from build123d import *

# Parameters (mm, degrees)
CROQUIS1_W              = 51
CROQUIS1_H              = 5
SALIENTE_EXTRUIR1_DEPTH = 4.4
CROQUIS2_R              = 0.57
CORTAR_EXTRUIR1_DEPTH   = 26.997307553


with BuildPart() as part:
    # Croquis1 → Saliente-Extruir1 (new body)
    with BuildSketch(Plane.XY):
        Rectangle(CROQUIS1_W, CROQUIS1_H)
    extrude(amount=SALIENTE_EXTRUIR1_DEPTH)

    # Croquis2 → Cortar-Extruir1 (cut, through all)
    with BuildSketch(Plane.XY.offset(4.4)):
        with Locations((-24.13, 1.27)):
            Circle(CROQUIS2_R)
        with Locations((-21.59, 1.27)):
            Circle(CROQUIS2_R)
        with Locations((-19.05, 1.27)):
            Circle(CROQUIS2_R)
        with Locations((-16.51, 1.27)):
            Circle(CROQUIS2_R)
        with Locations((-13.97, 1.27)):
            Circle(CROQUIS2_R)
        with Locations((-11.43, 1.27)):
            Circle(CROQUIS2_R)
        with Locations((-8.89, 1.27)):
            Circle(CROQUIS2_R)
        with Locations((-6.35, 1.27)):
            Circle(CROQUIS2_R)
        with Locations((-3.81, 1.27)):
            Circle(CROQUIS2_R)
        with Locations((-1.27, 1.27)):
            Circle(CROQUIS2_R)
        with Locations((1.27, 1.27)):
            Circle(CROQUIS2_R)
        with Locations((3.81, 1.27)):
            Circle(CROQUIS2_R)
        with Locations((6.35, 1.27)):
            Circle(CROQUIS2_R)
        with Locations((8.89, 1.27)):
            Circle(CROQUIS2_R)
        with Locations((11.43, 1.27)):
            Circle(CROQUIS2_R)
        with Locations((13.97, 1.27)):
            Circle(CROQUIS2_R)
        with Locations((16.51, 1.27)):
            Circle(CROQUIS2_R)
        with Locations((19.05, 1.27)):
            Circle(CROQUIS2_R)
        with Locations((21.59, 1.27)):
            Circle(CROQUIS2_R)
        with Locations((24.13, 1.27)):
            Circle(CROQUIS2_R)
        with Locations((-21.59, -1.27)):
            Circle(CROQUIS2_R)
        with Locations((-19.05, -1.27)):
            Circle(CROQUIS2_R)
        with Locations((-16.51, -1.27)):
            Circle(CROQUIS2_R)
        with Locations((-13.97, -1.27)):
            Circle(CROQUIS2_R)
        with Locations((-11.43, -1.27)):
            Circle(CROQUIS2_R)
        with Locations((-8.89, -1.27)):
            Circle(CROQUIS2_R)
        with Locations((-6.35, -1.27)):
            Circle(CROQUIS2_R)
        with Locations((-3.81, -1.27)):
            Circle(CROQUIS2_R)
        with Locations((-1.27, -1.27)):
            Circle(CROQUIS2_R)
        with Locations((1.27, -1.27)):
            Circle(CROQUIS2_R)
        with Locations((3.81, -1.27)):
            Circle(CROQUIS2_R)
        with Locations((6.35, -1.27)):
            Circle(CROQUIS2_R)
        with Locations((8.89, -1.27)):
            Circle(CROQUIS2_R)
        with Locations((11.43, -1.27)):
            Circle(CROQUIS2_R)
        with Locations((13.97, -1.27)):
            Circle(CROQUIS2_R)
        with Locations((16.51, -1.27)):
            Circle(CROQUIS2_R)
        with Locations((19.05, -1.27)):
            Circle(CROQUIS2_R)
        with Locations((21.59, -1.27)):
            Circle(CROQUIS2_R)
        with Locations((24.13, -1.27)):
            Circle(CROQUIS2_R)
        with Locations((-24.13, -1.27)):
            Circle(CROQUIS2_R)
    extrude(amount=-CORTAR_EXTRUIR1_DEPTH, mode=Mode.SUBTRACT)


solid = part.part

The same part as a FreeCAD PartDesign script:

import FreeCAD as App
import Part
import Sketcher
Q = App.Units.Quantity


def add_polygon(sketch, points):
    """Adds a closed chain of lines whose ends are joined by coincident constraints."""
    first, n = sketch.GeometryCount, len(points)
    for a, b in zip(points, points[1:] + points[:1]):
        sketch.addGeometry(Part.LineSegment(App.Vector(*a, 0), App.Vector(*b, 0)), False)
    for i in range(n):
        sketch.addConstraint(Sketcher.Constraint("Coincident", first + i, 2, first + (i + 1) % n, 1))

doc = App.newDocument("Part")
body = doc.addObject("PartDesign::Body", "Body")

# Sketch on XY plane
sketch1 = body.newObject("Sketcher::SketchObject", "Sketch")
sketch1.AttachmentSupport = (doc.getObject("XY_Plane"), [""])
sketch1.MapMode = "FlatFace"
add_polygon(sketch1, [(-26, 2), (-26, -2), (26, -2), (26, 2)])  # lines 0-3
sketch1.addConstraint(Sketcher.Constraint("Vertical", 0))
sketch1.addConstraint(Sketcher.Constraint("Horizontal", 1))
sketch1.addConstraint(Sketcher.Constraint("Vertical", 2))
sketch1.addConstraint(Sketcher.Constraint("Horizontal", 3))
sketch1.addConstraint(Sketcher.Constraint("Symmetric", 0, 2, 2, 2, -1, 1))
sketch1.addConstraint(Sketcher.Constraint("DistanceX", 1, 1, 1, 2, Q("51 mm")))
sketch1.addConstraint(Sketcher.Constraint("DistanceY", 0, 2, 0, 1, Q("5 mm")))
pad1 = body.newObject("PartDesign::Pad", "Pad")
pad1.Profile = sketch1
pad1.Length = 4.4

# Sketch on XY plane
sketch2 = body.newObject("Sketcher::SketchObject", "Sketch001")
sketch2.AttachmentSupport = (doc.getObject("XY_Plane"), [""])
sketch2.MapMode = "FlatFace"
sketch2.AttachmentOffset = App.Placement(App.Vector(0, 0, 4.4), App.Rotation())
sketch2.addGeometry(Part.Circle(App.Vector(-24.1, 1.3, 0), App.Vector(0, 0, 1), 0.6), False)
sketch2.addGeometry(Part.Circle(App.Vector(-21.6, 1.3, 0), App.Vector(0, 0, 1), 0.6), False)
sketch2.addGeometry(Part.Circle(App.Vector(-19.1, 1.3, 0), App.Vector(0, 0, 1), 0.6), False)
sketch2.addGeometry(Part.Circle(App.Vector(-16.5, 1.3, 0), App.Vector(0, 0, 1), 0.6), False)
sketch2.addGeometry(Part.Circle(App.Vector(-14, 1.3, 0), App.Vector(0, 0, 1), 0.6), False)
sketch2.addGeometry(Part.Circle(App.Vector(-11.4, 1.3, 0), App.Vector(0, 0, 1), 0.6), False)
sketch2.addGeometry(Part.Circle(App.Vector(-8.9, 1.3, 0), App.Vector(0, 0, 1), 0.6), False)
sketch2.addGeometry(Part.Circle(App.Vector(-6.3, 1.3, 0), App.Vector(0, 0, 1), 0.6), False)
sketch2.addGeometry(Part.Circle(App.Vector(-3.8, 1.3, 0), App.Vector(0, 0, 1), 0.6), False)
sketch2.addGeometry(Part.Circle(App.Vector(-1.3, 1.3, 0), App.Vector(0, 0, 1), 0.6), False)
sketch2.addGeometry(Part.Circle(App.Vector(1.3, 1.3, 0), App.Vector(0, 0, 1), 0.6), False)
sketch2.addGeometry(Part.Circle(App.Vector(3.8, 1.3, 0), App.Vector(0, 0, 1), 0.6), False)
sketch2.addGeometry(Part.Circle(App.Vector(6.3, 1.3, 0), App.Vector(0, 0, 1), 0.6), False)
sketch2.addGeometry(Part.Circle(App.Vector(8.9, 1.3, 0), App.Vector(0, 0, 1), 0.6), False)
sketch2.addGeometry(Part.Circle(App.Vector(11.4, 1.3, 0), App.Vector(0, 0, 1), 0.6), False)
sketch2.addGeometry(Part.Circle(App.Vector(14, 1.3, 0), App.Vector(0, 0, 1), 0.6), False)
sketch2.addGeometry(Part.Circle(App.Vector(16.5, 1.3, 0), App.Vector(0, 0, 1), 0.6), False)
sketch2.addGeometry(Part.Circle(App.Vector(19.1, 1.3, 0), App.Vector(0, 0, 1), 0.6), False)
sketch2.addGeometry(Part.Circle(App.Vector(21.6, 1.3, 0), App.Vector(0, 0, 1), 0.6), False)
sketch2.addGeometry(Part.Circle(App.Vector(24.1, 1.3, 0), App.Vector(0, 0, 1), 0.6), False)
sketch2.addGeometry(Part.Circle(App.Vector(-21.6, -1.3, 0), App.Vector(0, 0, 1), 0.6), False)
sketch2.addGeometry(Part.Circle(App.Vector(-19.1, -1.3, 0), App.Vector(0, 0, 1), 0.6), False)
sketch2.addGeometry(Part.Circle(App.Vector(-16.5, -1.3, 0), App.Vector(0, 0, 1), 0.6), False)
sketch2.addGeometry(Part.Circle(App.Vector(-14, -1.3, 0), App.Vector(0, 0, 1), 0.6), False)
sketch2.addGeometry(Part.Circle(App.Vector(-11.4, -1.3, 0), App.Vector(0, 0, 1), 0.6), False)
sketch2.addGeometry(Part.Circle(App.Vector(-8.9, -1.3, 0), App.Vector(0, 0, 1), 0.6), False)
sketch2.addGeometry(Part.Circle(App.Vector(-6.3, -1.3, 0), App.Vector(0, 0, 1), 0.6), False)
sketch2.addGeometry(Part.Circle(App.Vector(-3.8, -1.3, 0), App.Vector(0, 0, 1), 0.6), False)
sketch2.addGeometry(Part.Circle(App.Vector(-1.3, -1.3, 0), App.Vector(0, 0, 1), 0.6), False)
sketch2.addGeometry(Part.Circle(App.Vector(1.3, -1.3, 0), App.Vector(0, 0, 1), 0.6), False)
sketch2.addGeometry(Part.Circle(App.Vector(3.8, -1.3, 0), App.Vector(0, 0, 1), 0.6), False)
sketch2.addGeometry(Part.Circle(App.Vector(6.3, -1.3, 0), App.Vector(0, 0, 1), 0.6), False)
sketch2.addGeometry(Part.Circle(App.Vector(8.9, -1.3, 0), App.Vector(0, 0, 1), 0.6), False)
sketch2.addGeometry(Part.Circle(App.Vector(11.4, -1.3, 0), App.Vector(0, 0, 1), 0.6), False)
sketch2.addGeometry(Part.Circle(App.Vector(14, -1.3, 0), App.Vector(0, 0, 1), 0.6), False)
sketch2.addGeometry(Part.Circle(App.Vector(16.5, -1.3, 0), App.Vector(0, 0, 1), 0.6), False)
sketch2.addGeometry(Part.Circle(App.Vector(19.1, -1.3, 0), App.Vector(0, 0, 1), 0.6), False)
sketch2.addGeometry(Part.Circle(App.Vector(21.6, -1.3, 0), App.Vector(0, 0, 1), 0.6), False)
sketch2.addGeometry(Part.Circle(App.Vector(24.1, -1.3, 0), App.Vector(0, 0, 1), 0.6), False)
sketch2.addGeometry(Part.Circle(App.Vector(-24.1, -1.3, 0), App.Vector(0, 0, 1), 0.6), False)
sketch2.addConstraint(Sketcher.Constraint("Equal", 0, 1))
sketch2.addConstraint(Sketcher.Constraint("Equal", 1, 2))
sketch2.addConstraint(Sketcher.Constraint("Equal", 2, 3))
sketch2.addConstraint(Sketcher.Constraint("Equal", 3, 4))
sketch2.addConstraint(Sketcher.Constraint("Equal", 4, 5))
sketch2.addConstraint(Sketcher.Constraint("Equal", 5, 6))
sketch2.addConstraint(Sketcher.Constraint("Equal", 6, 7))
sketch2.addConstraint(Sketcher.Constraint("Equal", 7, 8))
sketch2.addConstraint(Sketcher.Constraint("Equal", 8, 9))
sketch2.addConstraint(Sketcher.Constraint("Equal", 9, 10))
sketch2.addConstraint(Sketcher.Constraint("Equal", 10, 11))
sketch2.addConstraint(Sketcher.Constraint("Equal", 11, 12))
sketch2.addConstraint(Sketcher.Constraint("Equal", 12, 13))
sketch2.addConstraint(Sketcher.Constraint("Equal", 13, 14))
sketch2.addConstraint(Sketcher.Constraint("Equal", 14, 15))
sketch2.addConstraint(Sketcher.Constraint("Equal", 15, 16))
sketch2.addConstraint(Sketcher.Constraint("Equal", 16, 17))
sketch2.addConstraint(Sketcher.Constraint("Equal", 17, 18))
sketch2.addConstraint(Sketcher.Constraint("Equal", 18, 19))
sketch2.addConstraint(Sketcher.Constraint("Equal", 19, 20))
sketch2.addConstraint(Sketcher.Constraint("Equal", 20, 21))
sketch2.addConstraint(Sketcher.Constraint("Equal", 21, 22))
sketch2.addConstraint(Sketcher.Constraint("Equal", 22, 23))
sketch2.addConstraint(Sketcher.Constraint("Equal", 23, 24))
sketch2.addConstraint(Sketcher.Constraint("Equal", 24, 25))
sketch2.addConstraint(Sketcher.Constraint("Equal", 25, 26))
sketch2.addConstraint(Sketcher.Constraint("Equal", 26, 27))
sketch2.addConstraint(Sketcher.Constraint("Equal", 27, 28))
sketch2.addConstraint(Sketcher.Constraint("Equal", 28, 29))
sketch2.addConstraint(Sketcher.Constraint("Equal", 29, 30))
sketch2.addConstraint(Sketcher.Constraint("Equal", 30, 31))
sketch2.addConstraint(Sketcher.Constraint("Equal", 31, 32))
sketch2.addConstraint(Sketcher.Constraint("Equal", 32, 33))
sketch2.addConstraint(Sketcher.Constraint("Equal", 33, 34))
sketch2.addConstraint(Sketcher.Constraint("Equal", 34, 35))
sketch2.addConstraint(Sketcher.Constraint("Equal", 35, 36))
sketch2.addConstraint(Sketcher.Constraint("Equal", 36, 37))
sketch2.addConstraint(Sketcher.Constraint("Equal", 37, 38))
sketch2.addConstraint(Sketcher.Constraint("Equal", 38, 39))
sketch2.addConstraint(Sketcher.Constraint("Symmetric", 18, 3, 20, 3, -1, 1))
sketch2.addConstraint(Sketcher.Constraint("Symmetric", 17, 3, 21, 3, -1, 1))
sketch2.addConstraint(Sketcher.Constraint("Symmetric", 16, 3, 22, 3, -1, 1))
sketch2.addConstraint(Sketcher.Constraint("Symmetric", 15, 3, 23, 3, -1, 1))
sketch2.addConstraint(Sketcher.Constraint("Symmetric", 14, 3, 24, 3, -1, 1))
sketch2.addConstraint(Sketcher.Constraint("Symmetric", 13, 3, 25, 3, -1, 1))
sketch2.addConstraint(Sketcher.Constraint("Symmetric", 12, 3, 26, 3, -1, 1))
sketch2.addConstraint(Sketcher.Constraint("Symmetric", 11, 3, 27, 3, -1, 1))
sketch2.addConstraint(Sketcher.Constraint("Symmetric", 10, 3, 28, 3, -1, 1))
sketch2.addConstraint(Sketcher.Constraint("Symmetric", 9, 3, 29, 3, -1, 1))
sketch2.addConstraint(Sketcher.Constraint("Symmetric", 8, 3, 30, 3, -1, 1))
sketch2.addConstraint(Sketcher.Constraint("Symmetric", 7, 3, 31, 3, -1, 1))
sketch2.addConstraint(Sketcher.Constraint("Symmetric", 6, 3, 32, 3, -1, 1))
sketch2.addConstraint(Sketcher.Constraint("Symmetric", 5, 3, 33, 3, -1, 1))
sketch2.addConstraint(Sketcher.Constraint("Symmetric", 4, 3, 34, 3, -1, 1))
sketch2.addConstraint(Sketcher.Constraint("Symmetric", 3, 3, 35, 3, -1, 1))
sketch2.addConstraint(Sketcher.Constraint("Symmetric", 2, 3, 36, 3, -1, 1))
sketch2.addConstraint(Sketcher.Constraint("Symmetric", 1, 3, 37, 3, -1, 1))
sketch2.addConstraint(Sketcher.Constraint("Symmetric", 0, 3, 38, 3, -1, 1))
sketch2.addConstraint(Sketcher.Constraint("Symmetric", 19, 3, 39, 3, -1, 1))
sketch2.addConstraint(Sketcher.Constraint("Symmetric", 9, 3, 10, 3, -2))
sketch2.addConstraint(Sketcher.Constraint("Symmetric", 8, 3, 11, 3, -2))
sketch2.addConstraint(Sketcher.Constraint("Symmetric", 7, 3, 12, 3, -2))
sketch2.addConstraint(Sketcher.Constraint("Symmetric", 6, 3, 13, 3, -2))
sketch2.addConstraint(Sketcher.Constraint("Symmetric", 5, 3, 14, 3, -2))
sketch2.addConstraint(Sketcher.Constraint("Symmetric", 4, 3, 15, 3, -2))
sketch2.addConstraint(Sketcher.Constraint("Symmetric", 3, 3, 16, 3, -2))
sketch2.addConstraint(Sketcher.Constraint("Symmetric", 2, 3, 17, 3, -2))
sketch2.addConstraint(Sketcher.Constraint("Symmetric", 1, 3, 18, 3, -2))
sketch2.addConstraint(Sketcher.Constraint("Symmetric", 0, 3, 19, 3, -2))
sketch2.addConstraint(Sketcher.Constraint("Horizontal", 0, 3, 1, 3))
sketch2.addConstraint(Sketcher.Constraint("Horizontal", 1, 3, 2, 3))
sketch2.addConstraint(Sketcher.Constraint("Horizontal", 2, 3, 3, 3))
sketch2.addConstraint(Sketcher.Constraint("Horizontal", 3, 3, 4, 3))
sketch2.addConstraint(Sketcher.Constraint("Horizontal", 4, 3, 5, 3))
sketch2.addConstraint(Sketcher.Constraint("Horizontal", 5, 3, 6, 3))
sketch2.addConstraint(Sketcher.Constraint("Horizontal", 6, 3, 7, 3))
sketch2.addConstraint(Sketcher.Constraint("Horizontal", 7, 3, 8, 3))
sketch2.addConstraint(Sketcher.Constraint("Horizontal", 8, 3, 9, 3))
sketch2.addConstraint(Sketcher.Constraint("Diameter", 0, Q("1.14 mm")))
sketch2.addConstraint(Sketcher.Constraint("DistanceX", 0, 3, 5, 3, Q("12.7 mm")))
sketch2.addConstraint(Sketcher.Constraint("DistanceX", 1, 3, 6, 3, Q("12.7 mm")))
sketch2.addConstraint(Sketcher.Constraint("DistanceX", 2, 3, 7, 3, Q("12.7 mm")))
sketch2.addConstraint(Sketcher.Constraint("DistanceX", 3, 3, 8, 3, Q("12.7 mm")))
sketch2.addConstraint(Sketcher.Constraint("DistanceX", 4, 3, 9, 3, Q("12.7 mm")))
sketch2.addConstraint(Sketcher.Constraint("DistanceX", 5, 3, 10, 3, Q("12.7 mm")))
sketch2.addConstraint(Sketcher.Constraint("DistanceX", 6, 3, 11, 3, Q("12.7 mm")))
sketch2.addConstraint(Sketcher.Constraint("DistanceX", 7, 3, 12, 3, Q("12.7 mm")))
sketch2.addConstraint(Sketcher.Constraint("DistanceX", 0, 3, -1, 1, Q("24.13 mm")))
sketch2.addConstraint(Sketcher.Constraint("DistanceY", -1, 1, 0, 3, Q("1.27 mm")))
sketch2.addConstraint(Sketcher.Constraint("DistanceX", 1, 3, -1, 1, Q("21.59 mm")))
pocket1 = body.newObject("PartDesign::Pocket", "Pocket")
pocket1.Profile = sketch2
pocket1.Type = "ThroughAll"

doc.recompute()
